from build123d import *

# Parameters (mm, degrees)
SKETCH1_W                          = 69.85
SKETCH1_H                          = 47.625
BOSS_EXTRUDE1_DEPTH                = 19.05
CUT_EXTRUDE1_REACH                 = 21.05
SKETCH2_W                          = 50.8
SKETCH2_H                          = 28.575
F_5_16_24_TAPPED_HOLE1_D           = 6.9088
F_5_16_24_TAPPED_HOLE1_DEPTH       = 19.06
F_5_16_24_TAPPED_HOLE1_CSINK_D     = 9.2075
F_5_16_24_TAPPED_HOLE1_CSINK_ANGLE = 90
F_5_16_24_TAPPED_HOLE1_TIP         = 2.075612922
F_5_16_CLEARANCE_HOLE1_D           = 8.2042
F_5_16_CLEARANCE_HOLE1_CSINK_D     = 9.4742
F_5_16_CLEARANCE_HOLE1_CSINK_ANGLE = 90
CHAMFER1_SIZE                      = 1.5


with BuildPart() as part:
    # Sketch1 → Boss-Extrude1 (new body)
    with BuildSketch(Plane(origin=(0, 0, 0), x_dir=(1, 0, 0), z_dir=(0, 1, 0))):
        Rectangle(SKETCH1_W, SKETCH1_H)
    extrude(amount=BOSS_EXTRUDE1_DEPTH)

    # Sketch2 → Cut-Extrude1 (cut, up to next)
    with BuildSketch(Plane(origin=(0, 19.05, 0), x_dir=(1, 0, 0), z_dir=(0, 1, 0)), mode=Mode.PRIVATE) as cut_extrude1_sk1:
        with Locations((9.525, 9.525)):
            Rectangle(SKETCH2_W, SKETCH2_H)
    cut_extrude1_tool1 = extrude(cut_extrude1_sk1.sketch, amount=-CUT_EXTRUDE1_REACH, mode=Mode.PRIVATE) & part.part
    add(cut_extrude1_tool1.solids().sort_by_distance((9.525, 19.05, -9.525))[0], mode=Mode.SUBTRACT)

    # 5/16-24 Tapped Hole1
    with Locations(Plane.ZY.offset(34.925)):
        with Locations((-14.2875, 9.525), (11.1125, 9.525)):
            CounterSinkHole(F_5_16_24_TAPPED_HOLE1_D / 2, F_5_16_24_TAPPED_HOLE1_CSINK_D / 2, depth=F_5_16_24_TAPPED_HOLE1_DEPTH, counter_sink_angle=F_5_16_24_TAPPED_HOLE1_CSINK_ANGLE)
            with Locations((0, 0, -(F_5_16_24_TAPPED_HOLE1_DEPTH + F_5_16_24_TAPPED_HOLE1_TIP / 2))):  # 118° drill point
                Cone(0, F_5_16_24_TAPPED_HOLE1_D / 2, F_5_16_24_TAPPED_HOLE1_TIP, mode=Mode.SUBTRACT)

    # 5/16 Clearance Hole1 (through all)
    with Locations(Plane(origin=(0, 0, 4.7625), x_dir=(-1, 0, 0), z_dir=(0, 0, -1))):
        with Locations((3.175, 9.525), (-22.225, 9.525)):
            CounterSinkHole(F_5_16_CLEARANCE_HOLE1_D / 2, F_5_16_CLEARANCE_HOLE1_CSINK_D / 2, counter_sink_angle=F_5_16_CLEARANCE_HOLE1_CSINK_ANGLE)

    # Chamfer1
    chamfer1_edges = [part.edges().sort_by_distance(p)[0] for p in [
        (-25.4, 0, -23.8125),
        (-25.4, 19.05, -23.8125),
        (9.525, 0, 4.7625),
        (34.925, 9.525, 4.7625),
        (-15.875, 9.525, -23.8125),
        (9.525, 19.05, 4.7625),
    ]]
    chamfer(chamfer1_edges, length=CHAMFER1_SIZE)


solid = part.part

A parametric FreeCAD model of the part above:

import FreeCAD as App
import Part
import Sketcher

V = App.Vector
Q = App.Units.Quantity


def edges_at(feature, points):
    """Names of the edges that pass closest to the given points."""
    edges = feature.Shape.Edges
    near = lambda p: min(range(len(edges)), key=lambda i: edges[i].distToShape(Part.Vertex(*p))[0])
    return sorted({f"Edge{near(p) + 1}" for p in points})

doc = App.newDocument("Part")
body = doc.addObject("PartDesign::Body", "Body")

sketch1 = body.newObject("Sketcher::SketchObject", "Sketch")
sketch1.AttachmentSupport = (doc.getObject("XZ_Plane"), [""])
sketch1.MapMode = "FlatFace"
sketch1.addGeometry([
    Part.LineSegment(V(-35, -24, 0), V(-35, 24, 0)),
    Part.LineSegment(V(-35, 24, 0), V(35, 24, 0)),
    Part.LineSegment(V(35, 24, 0), V(35, -24, 0)),
    Part.LineSegment(V(35, -24, 0), V(-35, -24, 0)),
], False)
sketch1.addConstraint([
    Sketcher.Constraint("Coincident", 0, 2, 1, 1),
    Sketcher.Constraint("Coincident", 1, 2, 2, 1),
    Sketcher.Constraint("Coincident", 2, 2, 3, 1),
    Sketcher.Constraint("Coincident", 3, 2, 0, 1),
    Sketcher.Constraint("Vertical", 0),
    Sketcher.Constraint("Horizontal", 1),
    Sketcher.Constraint("Vertical", 2),
    Sketcher.Constraint("Horizontal", 3),
    Sketcher.Constraint("Symmetric", 0, 2, 2, 2, -1, 1),
    Sketcher.Constraint("DistanceX", 1, 1, 1, 2, Q("2.75 in")),
    Sketcher.Constraint("DistanceY", 0, 1, 0, 2, Q("1.875 in")),
])
pad1 = body.newObject("PartDesign::Pad", "Pad")
pad1.Profile = sketch1
pad1.Length = Q("0.75 in")
pad1.Reversed = True

sketch2 = body.newObject("Sketcher::SketchObject", "Sketch001")
sketch2.AttachmentSupport = (doc.getObject("XZ_Plane"), [""])
sketch2.MapMode = "FlatFace"
sketch2.AttachmentOffset = App.Placement(V(0, 0, -0.75 * 25.4), App.Rotation())
sketch2.addGeometry([
    Part.LineSegment(V(-16, -24, 0), V(-16, 5, 0)),
    Part.LineSegment(V(-16, 5, 0), V(35, 5, 0)),
    Part.LineSegment(V(35, 5, 0), V(35, -24, 0)),
    Part.LineSegment(V(35, -24, 0), V(-16, -24, 0)),
], False)
sketch2.addConstraint([
    Sketcher.Constraint("Coincident", 0, 2, 1, 1),
    Sketcher.Constraint("Coincident", 1, 2, 2, 1),
    Sketcher.Constraint("Coincident", 2, 2, 3, 1),
    Sketcher.Constraint("Coincident", 3, 2, 0, 1),
    Sketcher.Constraint("Vertical", 0),
    Sketcher.Constraint("Horizontal", 1),
    Sketcher.Constraint("Vertical", 2),
    Sketcher.Constraint("Horizontal", 3),
    Sketcher.Constraint("DistanceX", 1, 1, 1, 2, Q("2 in")),
    Sketcher.Constraint("DistanceY", 0, 1, 0, 2, Q("1.125 in")),
    Sketcher.Constraint("DistanceX", 0, 2, -1, 1, Q("0.625 in")),
    Sketcher.Constraint("DistanceY", -1, 1, 0, 2, Q("0.1875 in")),
])
pocket1 = body.newObject("PartDesign::Pocket", "Pocket")
pocket1.Profile = sketch2
pocket1.Type = "UpToFirst"
pocket1.Reversed = True

sketch3 = body.newObject("Sketcher::SketchObject", "Sketch002")
sketch3.AttachmentSupport = (doc.getObject("YZ_Plane"), [""])
sketch3.MapMode = "FlatFace"
sketch3.AttachmentOffset = App.Placement(V(0, 0, -1.375 * 25.4), App.Rotation())
sketch3.addGeometry([
    Part.Circle(V(9.5, -14.3, 0), V(0, 0, 1), 3.5),
    Part.Circle(V(9.5, 11.1, 0), V(0, 0, 1), 3.5),
], False)
sketch3.addConstraint([
    Sketcher.Constraint("Equal", 0, 1),
    Sketcher.Constraint("Vertical", 0, 3, 1, 3),
    Sketcher.Constraint("Diameter", 0, Q("0.272 in")),
    Sketcher.Constraint("DistanceY", 0, 3, 1, 3, Q("1 in")),
    Sketcher.Constraint("DistanceX", -1, 1, 0, 3, Q("0.375 in")),
    Sketcher.Constraint("DistanceY", 0, 3, -1, 1, Q("0.5625 in")),
])
doc.recompute()
hole = body.newObject("PartDesign::Hole", "Hole")
hole.Profile = sketch3
hole.ThreadType = "None"
hole.Diameter = Q("0.272 in")
hole.DepthType = "Dimension"
hole.Depth = 19.06
hole.DrillPoint = "Angled"
hole.DrillPointAngle = 118
hole.HoleCutType = "Countersink"
hole.HoleCutDiameter = Q("0.3625 in")
hole.HoleCutCountersinkAngle = 90
hole.Reversed = True

sketch4 = body.newObject("Sketcher::SketchObject", "Sketch003")
sketch4.AttachmentSupport = (doc.getObject("XY_Plane"), [""])
sketch4.MapMode = "FlatFace"
sketch4.AttachmentOffset = App.Placement(V(0, 0, 0.1875 * 25.4), App.Rotation())
sketch4.addGeometry([
    Part.Circle(V(-3.2, 9.5, 0), V(0, 0, 1), 4.1),
    Part.Circle(V(22.2, 9.5, 0), V(0, 0, 1), 4.1),
], False)
sketch4.addConstraint([
    Sketcher.Constraint("Equal", 0, 1),
    Sketcher.Constraint("Horizontal", 0, 3, 1, 3),
    Sketcher.Constraint("Diameter", 0, Q("0.323 in")),
    Sketcher.Constraint("DistanceX", 0, 3, 1, 3, Q("1 in")),
    Sketcher.Constraint("DistanceX", 0, 3, -1, 1, Q("0.125 in")),
    Sketcher.Constraint("DistanceY", -1, 1, 0, 3, Q("0.375 in")),
])
doc.recompute()
hole2 = body.newObject("PartDesign::Hole", "Hole001")
hole2.Profile = sketch4
hole2.ThreadType = "None"
hole2.Diameter = Q("0.323 in")
hole2.DepthType = "ThroughAll"
hole2.HoleCutType = "Countersink"
hole2.HoleCutDiameter = Q("0.373 in")
hole2.HoleCutCountersinkAngle = 90
hole2.Reversed = True
doc.recompute()

chamfer = body.newObject("PartDesign::Chamfer", "Chamfer")
chamfer.Base = (hole2, edges_at(hole2, [
    (-25.4, 0, -23.812),
    (-25.4, 19.05, -23.812),
    (9.525, 0, 4.763),
    (34.925, 9.525, 4.763),
    (-15.875, 9.525, -23.812),
    (9.525, 19.05, 4.763),
]))
chamfer.Size = 1.5

doc.recompute()
